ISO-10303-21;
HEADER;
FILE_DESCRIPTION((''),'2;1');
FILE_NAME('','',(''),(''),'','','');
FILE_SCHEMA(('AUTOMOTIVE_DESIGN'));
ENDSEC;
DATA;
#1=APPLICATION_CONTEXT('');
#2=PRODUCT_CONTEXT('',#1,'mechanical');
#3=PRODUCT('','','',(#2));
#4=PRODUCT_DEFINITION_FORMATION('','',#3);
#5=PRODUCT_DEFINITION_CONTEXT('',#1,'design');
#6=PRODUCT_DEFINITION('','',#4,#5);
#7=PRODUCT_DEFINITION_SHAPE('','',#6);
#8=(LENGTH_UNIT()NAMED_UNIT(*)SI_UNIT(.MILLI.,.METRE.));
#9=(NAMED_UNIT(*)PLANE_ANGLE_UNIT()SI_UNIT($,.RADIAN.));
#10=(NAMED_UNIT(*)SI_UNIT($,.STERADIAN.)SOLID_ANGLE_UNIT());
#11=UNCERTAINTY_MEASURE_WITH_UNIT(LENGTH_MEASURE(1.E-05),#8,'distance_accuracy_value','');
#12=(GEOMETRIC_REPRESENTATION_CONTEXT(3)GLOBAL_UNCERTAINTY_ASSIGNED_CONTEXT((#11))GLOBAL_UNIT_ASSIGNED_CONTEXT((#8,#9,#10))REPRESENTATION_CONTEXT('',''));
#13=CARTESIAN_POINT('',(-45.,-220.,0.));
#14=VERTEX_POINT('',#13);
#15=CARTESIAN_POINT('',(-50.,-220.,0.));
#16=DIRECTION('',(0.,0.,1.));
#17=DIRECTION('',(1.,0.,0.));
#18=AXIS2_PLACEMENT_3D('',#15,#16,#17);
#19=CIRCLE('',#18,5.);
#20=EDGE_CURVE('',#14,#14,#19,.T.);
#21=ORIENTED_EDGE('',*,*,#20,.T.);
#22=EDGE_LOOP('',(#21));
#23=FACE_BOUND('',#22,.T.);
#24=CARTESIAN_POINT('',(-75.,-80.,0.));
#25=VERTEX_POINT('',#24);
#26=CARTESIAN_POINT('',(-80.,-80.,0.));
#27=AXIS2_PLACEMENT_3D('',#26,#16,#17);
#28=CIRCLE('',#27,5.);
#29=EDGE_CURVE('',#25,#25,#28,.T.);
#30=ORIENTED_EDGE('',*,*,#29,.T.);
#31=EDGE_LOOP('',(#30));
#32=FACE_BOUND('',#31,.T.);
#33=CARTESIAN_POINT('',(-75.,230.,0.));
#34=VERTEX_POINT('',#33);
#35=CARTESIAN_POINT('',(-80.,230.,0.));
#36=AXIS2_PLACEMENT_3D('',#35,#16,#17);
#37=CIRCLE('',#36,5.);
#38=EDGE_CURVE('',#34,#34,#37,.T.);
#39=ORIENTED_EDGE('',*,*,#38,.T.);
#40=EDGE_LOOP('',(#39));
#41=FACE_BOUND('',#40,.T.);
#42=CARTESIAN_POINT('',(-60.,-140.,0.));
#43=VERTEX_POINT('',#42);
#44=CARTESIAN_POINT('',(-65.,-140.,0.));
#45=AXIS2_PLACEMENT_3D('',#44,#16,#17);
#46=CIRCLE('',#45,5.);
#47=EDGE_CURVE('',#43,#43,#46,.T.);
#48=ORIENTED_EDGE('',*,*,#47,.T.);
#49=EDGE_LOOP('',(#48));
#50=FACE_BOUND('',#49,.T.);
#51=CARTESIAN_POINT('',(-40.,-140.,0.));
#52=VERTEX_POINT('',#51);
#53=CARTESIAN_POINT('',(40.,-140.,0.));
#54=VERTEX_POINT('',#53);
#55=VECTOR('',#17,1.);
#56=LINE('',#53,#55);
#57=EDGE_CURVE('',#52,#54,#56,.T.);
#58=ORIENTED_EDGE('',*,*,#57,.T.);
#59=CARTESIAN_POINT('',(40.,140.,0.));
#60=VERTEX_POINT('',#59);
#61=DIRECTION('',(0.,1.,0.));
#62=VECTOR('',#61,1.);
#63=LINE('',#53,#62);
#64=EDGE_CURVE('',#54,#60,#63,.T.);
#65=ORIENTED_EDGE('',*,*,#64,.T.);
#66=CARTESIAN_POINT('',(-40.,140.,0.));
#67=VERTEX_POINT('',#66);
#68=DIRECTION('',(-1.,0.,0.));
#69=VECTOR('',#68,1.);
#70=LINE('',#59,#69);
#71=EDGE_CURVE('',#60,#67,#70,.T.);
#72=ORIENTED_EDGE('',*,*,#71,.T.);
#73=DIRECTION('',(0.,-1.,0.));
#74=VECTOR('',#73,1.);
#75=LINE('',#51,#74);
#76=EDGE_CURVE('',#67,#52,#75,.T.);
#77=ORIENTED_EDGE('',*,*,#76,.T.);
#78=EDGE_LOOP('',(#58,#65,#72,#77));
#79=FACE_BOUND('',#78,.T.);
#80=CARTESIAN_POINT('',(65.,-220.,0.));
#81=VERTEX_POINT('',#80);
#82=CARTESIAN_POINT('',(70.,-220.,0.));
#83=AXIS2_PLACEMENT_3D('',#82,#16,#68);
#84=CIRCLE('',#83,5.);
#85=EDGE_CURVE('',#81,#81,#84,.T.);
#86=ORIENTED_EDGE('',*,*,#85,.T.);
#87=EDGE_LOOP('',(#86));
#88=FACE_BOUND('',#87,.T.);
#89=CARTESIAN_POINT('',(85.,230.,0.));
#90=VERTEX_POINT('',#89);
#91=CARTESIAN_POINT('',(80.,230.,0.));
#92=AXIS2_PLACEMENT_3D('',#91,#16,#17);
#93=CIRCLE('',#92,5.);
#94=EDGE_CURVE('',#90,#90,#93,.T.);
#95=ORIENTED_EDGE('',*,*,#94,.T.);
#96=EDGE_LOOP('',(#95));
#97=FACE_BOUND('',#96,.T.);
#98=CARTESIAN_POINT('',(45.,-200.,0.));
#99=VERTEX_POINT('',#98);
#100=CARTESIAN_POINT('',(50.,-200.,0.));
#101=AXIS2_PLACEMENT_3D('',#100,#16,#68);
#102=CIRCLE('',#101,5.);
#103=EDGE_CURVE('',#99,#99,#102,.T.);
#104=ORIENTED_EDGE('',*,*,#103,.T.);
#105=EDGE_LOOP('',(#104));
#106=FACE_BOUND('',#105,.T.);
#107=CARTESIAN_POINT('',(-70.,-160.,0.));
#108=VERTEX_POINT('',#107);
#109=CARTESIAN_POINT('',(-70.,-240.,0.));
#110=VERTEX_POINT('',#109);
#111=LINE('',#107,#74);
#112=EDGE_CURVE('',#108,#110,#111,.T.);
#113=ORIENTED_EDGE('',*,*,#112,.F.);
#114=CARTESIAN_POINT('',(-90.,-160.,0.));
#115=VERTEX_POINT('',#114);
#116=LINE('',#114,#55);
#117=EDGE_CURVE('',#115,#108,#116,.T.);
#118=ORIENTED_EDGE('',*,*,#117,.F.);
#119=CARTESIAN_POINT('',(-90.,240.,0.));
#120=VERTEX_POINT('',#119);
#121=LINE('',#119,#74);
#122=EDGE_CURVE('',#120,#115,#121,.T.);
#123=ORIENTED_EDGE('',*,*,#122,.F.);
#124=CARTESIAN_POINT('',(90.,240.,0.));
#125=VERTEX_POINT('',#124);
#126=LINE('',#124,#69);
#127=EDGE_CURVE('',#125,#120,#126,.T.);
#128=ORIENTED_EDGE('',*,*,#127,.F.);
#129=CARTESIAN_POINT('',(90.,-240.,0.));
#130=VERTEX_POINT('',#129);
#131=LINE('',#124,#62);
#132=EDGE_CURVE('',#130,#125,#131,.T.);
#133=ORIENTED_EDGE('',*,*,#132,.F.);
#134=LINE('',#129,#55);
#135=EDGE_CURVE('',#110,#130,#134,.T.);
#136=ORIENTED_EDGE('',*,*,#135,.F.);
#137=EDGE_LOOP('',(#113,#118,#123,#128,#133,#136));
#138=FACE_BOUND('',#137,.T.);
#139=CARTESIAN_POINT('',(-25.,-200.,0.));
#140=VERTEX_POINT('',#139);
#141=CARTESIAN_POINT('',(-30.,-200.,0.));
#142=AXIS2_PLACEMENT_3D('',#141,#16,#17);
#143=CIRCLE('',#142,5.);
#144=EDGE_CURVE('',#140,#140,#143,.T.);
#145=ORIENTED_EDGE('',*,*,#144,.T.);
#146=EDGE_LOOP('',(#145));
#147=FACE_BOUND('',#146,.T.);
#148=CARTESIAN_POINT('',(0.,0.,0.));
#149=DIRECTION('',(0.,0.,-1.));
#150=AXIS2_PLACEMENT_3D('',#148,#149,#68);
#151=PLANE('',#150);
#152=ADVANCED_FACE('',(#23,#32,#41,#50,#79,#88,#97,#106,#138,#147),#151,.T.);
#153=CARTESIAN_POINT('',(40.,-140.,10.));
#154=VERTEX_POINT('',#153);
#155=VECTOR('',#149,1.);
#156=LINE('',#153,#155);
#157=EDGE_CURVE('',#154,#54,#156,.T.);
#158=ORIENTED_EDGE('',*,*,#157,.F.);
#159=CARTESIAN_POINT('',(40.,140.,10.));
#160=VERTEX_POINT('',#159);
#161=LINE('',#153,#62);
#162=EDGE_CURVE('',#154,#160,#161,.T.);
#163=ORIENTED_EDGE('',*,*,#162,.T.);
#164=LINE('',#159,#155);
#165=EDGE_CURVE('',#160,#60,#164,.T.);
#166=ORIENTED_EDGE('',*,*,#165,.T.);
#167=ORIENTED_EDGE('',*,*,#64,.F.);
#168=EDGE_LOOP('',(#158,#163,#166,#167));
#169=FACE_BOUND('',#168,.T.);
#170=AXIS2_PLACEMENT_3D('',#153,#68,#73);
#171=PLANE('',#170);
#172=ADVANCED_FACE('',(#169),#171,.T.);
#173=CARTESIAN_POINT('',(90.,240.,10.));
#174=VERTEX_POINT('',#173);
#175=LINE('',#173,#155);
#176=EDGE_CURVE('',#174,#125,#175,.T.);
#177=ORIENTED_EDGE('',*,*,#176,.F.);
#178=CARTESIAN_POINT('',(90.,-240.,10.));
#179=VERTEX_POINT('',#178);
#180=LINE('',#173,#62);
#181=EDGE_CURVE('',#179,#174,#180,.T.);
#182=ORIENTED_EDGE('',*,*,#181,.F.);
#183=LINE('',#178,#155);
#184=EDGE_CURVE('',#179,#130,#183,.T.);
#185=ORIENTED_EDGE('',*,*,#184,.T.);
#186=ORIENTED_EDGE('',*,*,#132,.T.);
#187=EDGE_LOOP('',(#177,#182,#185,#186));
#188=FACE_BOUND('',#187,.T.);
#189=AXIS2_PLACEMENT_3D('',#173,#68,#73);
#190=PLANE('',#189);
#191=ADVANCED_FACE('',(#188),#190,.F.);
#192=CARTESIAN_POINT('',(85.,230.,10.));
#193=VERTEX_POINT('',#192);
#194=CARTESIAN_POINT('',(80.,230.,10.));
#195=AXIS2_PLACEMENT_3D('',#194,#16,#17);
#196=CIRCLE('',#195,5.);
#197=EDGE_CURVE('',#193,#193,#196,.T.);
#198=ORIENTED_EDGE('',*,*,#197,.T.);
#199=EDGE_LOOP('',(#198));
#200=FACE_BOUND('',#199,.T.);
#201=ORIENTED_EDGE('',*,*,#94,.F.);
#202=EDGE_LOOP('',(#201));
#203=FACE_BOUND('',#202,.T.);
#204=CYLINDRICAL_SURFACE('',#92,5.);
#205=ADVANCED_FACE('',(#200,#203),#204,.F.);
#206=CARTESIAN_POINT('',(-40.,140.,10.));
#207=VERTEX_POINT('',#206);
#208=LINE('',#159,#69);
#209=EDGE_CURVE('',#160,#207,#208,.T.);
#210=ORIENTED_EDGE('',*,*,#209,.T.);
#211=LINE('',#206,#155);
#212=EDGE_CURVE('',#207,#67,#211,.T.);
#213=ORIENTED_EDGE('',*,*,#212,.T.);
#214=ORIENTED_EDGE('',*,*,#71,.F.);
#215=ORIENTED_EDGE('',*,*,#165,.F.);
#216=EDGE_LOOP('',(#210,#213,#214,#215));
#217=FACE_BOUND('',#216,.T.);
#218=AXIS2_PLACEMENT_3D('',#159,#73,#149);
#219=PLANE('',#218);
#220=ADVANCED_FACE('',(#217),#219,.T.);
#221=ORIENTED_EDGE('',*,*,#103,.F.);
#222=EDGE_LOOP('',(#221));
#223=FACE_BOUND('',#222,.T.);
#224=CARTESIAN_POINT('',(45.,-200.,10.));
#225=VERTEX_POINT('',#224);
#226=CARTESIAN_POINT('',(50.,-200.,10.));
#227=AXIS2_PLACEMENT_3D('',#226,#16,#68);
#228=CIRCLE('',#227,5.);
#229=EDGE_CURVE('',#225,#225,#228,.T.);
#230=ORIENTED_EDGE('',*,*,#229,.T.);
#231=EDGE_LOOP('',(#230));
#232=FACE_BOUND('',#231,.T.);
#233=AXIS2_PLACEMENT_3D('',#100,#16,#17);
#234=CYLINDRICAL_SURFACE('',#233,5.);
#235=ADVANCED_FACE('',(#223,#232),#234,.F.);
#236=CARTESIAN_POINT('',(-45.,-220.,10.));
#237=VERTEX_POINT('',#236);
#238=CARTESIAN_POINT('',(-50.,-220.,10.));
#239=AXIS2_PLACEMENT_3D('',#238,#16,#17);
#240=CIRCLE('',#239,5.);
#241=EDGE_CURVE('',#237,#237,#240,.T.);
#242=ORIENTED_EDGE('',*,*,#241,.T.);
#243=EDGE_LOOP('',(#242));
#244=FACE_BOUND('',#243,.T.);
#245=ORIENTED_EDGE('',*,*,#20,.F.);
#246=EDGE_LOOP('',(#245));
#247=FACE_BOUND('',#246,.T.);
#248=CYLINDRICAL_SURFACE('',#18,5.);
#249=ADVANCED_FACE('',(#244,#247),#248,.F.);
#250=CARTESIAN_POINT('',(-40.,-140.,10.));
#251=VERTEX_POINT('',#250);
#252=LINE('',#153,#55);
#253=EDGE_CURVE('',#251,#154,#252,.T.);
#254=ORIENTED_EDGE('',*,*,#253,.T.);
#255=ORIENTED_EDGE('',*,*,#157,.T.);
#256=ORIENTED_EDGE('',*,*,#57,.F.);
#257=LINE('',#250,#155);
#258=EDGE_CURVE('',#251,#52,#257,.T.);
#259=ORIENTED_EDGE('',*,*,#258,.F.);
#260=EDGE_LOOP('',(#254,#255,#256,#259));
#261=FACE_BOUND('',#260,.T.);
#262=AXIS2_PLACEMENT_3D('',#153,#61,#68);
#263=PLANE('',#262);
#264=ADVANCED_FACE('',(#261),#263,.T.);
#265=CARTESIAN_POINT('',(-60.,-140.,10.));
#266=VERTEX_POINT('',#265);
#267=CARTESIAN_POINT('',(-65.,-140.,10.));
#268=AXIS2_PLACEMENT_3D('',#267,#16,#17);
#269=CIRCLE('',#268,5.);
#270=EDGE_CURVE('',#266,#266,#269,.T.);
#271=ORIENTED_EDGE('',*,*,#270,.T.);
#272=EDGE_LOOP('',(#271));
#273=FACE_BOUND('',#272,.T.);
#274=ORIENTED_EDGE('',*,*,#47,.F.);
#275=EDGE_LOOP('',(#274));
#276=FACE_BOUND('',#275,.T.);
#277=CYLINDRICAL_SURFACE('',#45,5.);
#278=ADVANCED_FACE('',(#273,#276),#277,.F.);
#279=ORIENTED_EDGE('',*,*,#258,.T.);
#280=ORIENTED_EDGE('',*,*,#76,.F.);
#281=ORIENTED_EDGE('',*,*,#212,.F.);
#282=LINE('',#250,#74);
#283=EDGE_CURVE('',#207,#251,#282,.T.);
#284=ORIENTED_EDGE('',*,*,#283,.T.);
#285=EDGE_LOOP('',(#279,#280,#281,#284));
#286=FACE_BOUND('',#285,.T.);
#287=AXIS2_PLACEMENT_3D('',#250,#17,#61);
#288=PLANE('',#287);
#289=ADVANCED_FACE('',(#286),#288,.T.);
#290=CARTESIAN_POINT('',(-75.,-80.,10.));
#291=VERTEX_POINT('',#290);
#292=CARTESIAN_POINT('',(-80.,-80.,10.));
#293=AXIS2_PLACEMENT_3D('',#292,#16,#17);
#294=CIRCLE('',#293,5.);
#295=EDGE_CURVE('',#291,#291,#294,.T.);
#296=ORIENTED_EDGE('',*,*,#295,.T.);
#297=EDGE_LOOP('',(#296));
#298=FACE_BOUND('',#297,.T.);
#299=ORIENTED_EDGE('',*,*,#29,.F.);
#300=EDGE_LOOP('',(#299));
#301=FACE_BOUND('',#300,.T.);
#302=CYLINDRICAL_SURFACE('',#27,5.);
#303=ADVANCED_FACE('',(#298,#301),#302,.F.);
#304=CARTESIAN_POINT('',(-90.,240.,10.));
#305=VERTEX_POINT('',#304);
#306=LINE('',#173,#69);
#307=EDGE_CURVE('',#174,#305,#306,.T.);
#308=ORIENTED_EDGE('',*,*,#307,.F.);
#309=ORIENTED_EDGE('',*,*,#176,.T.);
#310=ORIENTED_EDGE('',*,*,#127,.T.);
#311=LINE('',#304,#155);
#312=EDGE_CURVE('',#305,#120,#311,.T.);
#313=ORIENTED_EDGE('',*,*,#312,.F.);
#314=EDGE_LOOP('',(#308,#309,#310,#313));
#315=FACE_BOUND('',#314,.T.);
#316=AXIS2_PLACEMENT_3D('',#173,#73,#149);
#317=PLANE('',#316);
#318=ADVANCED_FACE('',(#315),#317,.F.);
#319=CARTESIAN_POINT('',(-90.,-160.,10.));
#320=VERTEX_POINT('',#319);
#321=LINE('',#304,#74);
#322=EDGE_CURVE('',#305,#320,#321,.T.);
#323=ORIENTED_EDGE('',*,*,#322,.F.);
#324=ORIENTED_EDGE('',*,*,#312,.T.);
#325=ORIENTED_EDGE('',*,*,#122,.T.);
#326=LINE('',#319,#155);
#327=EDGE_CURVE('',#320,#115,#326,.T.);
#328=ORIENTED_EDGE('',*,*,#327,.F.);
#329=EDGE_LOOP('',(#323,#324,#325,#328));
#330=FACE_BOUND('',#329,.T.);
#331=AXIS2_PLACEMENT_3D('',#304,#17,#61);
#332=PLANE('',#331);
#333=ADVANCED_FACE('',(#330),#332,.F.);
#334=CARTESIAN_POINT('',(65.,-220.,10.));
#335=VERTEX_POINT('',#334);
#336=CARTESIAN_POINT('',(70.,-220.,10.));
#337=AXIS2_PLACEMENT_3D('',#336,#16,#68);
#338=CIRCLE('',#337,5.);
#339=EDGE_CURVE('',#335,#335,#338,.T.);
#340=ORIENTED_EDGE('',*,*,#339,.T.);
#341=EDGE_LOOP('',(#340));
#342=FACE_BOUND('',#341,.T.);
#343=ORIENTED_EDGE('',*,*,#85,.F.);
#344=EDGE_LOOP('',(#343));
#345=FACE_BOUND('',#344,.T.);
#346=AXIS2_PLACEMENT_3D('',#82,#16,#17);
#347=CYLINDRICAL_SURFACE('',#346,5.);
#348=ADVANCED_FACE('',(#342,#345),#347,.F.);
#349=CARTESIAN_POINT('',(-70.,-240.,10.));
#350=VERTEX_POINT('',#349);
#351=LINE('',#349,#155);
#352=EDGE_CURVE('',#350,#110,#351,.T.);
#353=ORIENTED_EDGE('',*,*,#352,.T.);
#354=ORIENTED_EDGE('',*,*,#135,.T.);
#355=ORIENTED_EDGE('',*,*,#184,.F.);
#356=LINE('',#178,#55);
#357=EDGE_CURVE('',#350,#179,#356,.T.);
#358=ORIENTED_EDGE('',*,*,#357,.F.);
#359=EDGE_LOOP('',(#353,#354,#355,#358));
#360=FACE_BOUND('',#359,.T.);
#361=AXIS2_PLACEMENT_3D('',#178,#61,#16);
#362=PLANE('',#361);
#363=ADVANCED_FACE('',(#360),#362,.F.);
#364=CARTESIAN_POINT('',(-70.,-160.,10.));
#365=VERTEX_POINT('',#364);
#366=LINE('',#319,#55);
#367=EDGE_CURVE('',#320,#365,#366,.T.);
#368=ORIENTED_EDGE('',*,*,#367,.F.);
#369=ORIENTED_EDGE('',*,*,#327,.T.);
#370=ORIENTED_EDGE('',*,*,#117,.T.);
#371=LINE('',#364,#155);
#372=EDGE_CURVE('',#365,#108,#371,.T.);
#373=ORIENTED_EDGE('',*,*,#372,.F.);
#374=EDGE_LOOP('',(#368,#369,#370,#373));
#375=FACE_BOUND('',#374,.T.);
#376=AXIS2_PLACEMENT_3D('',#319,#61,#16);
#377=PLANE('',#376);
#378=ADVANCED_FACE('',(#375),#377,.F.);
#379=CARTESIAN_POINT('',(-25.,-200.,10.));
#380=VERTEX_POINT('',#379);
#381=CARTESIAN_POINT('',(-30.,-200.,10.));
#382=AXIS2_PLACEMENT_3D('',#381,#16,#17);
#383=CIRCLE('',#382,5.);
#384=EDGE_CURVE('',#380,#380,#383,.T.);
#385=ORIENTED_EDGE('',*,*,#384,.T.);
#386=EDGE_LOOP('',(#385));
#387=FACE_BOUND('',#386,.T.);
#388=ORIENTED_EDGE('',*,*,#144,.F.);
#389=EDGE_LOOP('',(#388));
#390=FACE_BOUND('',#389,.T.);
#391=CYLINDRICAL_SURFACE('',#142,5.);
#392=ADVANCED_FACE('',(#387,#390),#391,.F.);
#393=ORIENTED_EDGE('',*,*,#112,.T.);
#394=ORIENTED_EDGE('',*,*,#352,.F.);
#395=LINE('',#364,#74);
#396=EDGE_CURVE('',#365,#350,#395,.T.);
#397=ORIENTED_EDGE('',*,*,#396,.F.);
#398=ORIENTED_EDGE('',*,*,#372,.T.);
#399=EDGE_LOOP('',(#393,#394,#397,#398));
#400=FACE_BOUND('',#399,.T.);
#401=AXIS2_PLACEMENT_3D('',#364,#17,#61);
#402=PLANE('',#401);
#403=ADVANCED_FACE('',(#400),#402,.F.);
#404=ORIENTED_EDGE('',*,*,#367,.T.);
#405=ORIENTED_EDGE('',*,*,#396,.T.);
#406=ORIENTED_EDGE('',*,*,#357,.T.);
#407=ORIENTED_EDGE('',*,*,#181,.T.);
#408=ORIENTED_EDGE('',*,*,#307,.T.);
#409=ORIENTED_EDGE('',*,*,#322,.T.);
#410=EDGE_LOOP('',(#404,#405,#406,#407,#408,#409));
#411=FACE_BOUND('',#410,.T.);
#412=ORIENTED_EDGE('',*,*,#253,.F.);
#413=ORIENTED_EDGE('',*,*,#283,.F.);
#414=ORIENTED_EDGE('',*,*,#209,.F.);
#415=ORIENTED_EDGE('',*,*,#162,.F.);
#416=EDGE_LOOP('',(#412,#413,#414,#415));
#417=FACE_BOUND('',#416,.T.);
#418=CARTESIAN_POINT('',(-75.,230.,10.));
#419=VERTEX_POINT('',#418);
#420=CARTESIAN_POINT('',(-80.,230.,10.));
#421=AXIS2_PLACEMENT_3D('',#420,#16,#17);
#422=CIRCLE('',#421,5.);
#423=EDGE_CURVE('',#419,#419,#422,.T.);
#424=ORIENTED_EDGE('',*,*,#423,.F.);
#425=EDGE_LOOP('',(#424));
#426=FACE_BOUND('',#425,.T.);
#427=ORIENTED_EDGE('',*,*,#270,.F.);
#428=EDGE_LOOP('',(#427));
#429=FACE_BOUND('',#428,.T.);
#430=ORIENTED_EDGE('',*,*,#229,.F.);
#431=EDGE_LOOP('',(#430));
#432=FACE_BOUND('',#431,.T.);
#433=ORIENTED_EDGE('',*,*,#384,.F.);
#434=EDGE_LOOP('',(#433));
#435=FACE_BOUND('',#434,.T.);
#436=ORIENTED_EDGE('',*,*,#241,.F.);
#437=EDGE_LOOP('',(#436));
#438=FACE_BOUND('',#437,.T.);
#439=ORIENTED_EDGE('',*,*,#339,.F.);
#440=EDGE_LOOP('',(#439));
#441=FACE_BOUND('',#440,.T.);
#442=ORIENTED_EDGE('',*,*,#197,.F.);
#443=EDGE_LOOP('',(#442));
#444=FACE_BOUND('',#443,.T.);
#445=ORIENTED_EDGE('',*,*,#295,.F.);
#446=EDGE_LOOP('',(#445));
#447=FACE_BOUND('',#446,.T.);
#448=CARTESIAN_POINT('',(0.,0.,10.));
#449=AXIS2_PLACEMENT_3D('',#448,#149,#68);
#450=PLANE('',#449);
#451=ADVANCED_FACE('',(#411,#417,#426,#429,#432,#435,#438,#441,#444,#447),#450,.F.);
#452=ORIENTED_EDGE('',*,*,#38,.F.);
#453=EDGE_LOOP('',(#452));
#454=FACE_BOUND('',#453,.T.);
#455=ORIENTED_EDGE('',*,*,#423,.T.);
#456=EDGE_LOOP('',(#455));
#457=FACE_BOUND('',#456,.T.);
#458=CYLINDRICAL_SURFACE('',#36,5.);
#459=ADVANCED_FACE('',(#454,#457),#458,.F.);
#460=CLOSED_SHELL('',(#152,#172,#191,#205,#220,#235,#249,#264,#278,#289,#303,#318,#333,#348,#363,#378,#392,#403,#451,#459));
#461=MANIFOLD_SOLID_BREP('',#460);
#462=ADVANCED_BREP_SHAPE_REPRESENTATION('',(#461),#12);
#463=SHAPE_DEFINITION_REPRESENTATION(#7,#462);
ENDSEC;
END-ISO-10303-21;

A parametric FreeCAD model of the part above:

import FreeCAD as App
import Part
import Sketcher

V = App.Vector

doc = App.newDocument("Part")
body = doc.addObject("PartDesign::Body", "Body")

sketch1 = body.newObject("Sketcher::SketchObject", "Sketch")
sketch1.AttachmentSupport = (doc.getObject("XY_Plane"), [""])
sketch1.MapMode = "FlatFace"
sketch1.addGeometry([
    Part.LineSegment(V(-90, -160, 0), V(-70, -160, 0)),
    Part.LineSegment(V(-70, -160, 0), V(-70, -240, 0)),
    Part.LineSegment(V(-70, -240, 0), V(90, -240, 0)),
    Part.LineSegment(V(90, -240, 0), V(90, 240, 0)),
    Part.LineSegment(V(90, 240, 0), V(-90, 240, 0)),
    Part.LineSegment(V(-90, 240, 0), V(-90, -160, 0)),
    Part.LineSegment(V(40, -140, 0), V(-40, -140, 0)),
    Part.LineSegment(V(-40, -140, 0), V(-40, 140, 0)),
    Part.LineSegment(V(-40, 140, 0), V(40, 140, 0)),
    Part.LineSegment(V(40, 140, 0), V(40, -140, 0)),
], False)
sketch1.addConstraint([
    Sketcher.Constraint("Coincident", 0, 2, 1, 1),
    Sketcher.Constraint("Coincident", 1, 2, 2, 1),
    Sketcher.Constraint("Coincident", 2, 2, 3, 1),
    Sketcher.Constraint("Coincident", 3, 2, 4, 1),
    Sketcher.Constraint("Coincident", 4, 2, 5, 1),
    Sketcher.Constraint("Coincident", 5, 2, 0, 1),
    Sketcher.Constraint("Coincident", 6, 2, 7, 1),
    Sketcher.Constraint("Coincident", 7, 2, 8, 1),
    Sketcher.Constraint("Coincident", 8, 2, 9, 1),
    Sketcher.Constraint("Coincident", 9, 2, 6, 1),
    Sketcher.Constraint("Horizontal", 0),
    Sketcher.Constraint("Vertical", 1),
    Sketcher.Constraint("Horizontal", 2),
    Sketcher.Constraint("Vertical", 3),
    Sketcher.Constraint("Horizontal", 4),
    Sketcher.Constraint("Vertical", 5),
    Sketcher.Constraint("Horizontal", 6),
    Sketcher.Constraint("Vertical", 7),
    Sketcher.Constraint("Horizontal", 8),
    Sketcher.Constraint("Vertical", 9),
    Sketcher.Constraint("Symmetric", 2, 2, 4, 2, -1, 1),
    Sketcher.Constraint("Symmetric", 6, 2, 8, 2, -1, 1),
    Sketcher.Constraint("Equal", 8, 1),
    Sketcher.Constraint("DistanceX", 0, 1, 0, 2, 20.0),
    Sketcher.Constraint("DistanceX", 2, 1, 2, 2, 160.0),
    Sketcher.Constraint("DistanceX", 6, 2, 6, 1, 80.0),
    Sketcher.Constraint("DistanceY", 3, 1, 3, 2, 480.0),
    Sketcher.Constraint("DistanceY", 7, 1, 7, 2, 280.0),
])
pad1 = body.newObject("PartDesign::Pad", "Pad")
pad1.Profile = sketch1
pad1.Length = 10

sketch2 = body.newObject("Sketcher::SketchObject", "Sketch001")
sketch2.AttachmentSupport = (doc.getObject("XY_Plane"), [""])
sketch2.MapMode = "FlatFace"
sketch2.AttachmentOffset = App.Placement(V(0, 0, 10), App.Rotation())
sketch2.addGeometry([
    Part.Circle(V(-50, -220, 0), V(0, 0, 1), 5),
    Part.Circle(V(-30, -200, 0), V(0, 0, 1), 5),
    Part.Circle(V(70, -220, 0), V(0, 0, 1), 5),
    Part.Circle(V(50, -200, 0), V(0, 0, 1), 5),
    Part.Circle(V(-80, 230, 0), V(0, 0, 1), 5),
    Part.Circle(V(80, 230, 0), V(0, 0, 1), 5),
    Part.Circle(V(-80, -80, 0), V(0, 0, 1), 5),
    Part.Circle(V(-65, -140, 0), V(0, 0, 1), 5),
], False)
sketch2.addConstraint([
    Sketcher.Constraint("Equal", 0, 1),
    Sketcher.Constraint("Equal", 1, 2),
    Sketcher.Constraint("Equal", 2, 3),
    Sketcher.Constraint("Equal", 3, 4),
    Sketcher.Constraint("Equal", 4, 5),
    Sketcher.Constraint("Equal", 5, 6),
    Sketcher.Constraint("Equal", 6, 7),
    Sketcher.Constraint("Symmetric", 4, 3, 5, 3, -2),
    Sketcher.Constraint("Horizontal", 0, 3, 2, 3),
    Sketcher.Constraint("Horizontal", 1, 3, 3, 3),
    Sketcher.Constraint("Vertical", 4, 3, 6, 3),
    Sketcher.Constraint("Diameter", 0, 10.0),
    Sketcher.Constraint("DistanceX", 0, 3, -1, 1, 50.0),
    Sketcher.Constraint("DistanceY", 0, 3, -1, 1, 220.0),
    Sketcher.Constraint("DistanceX", 1, 3, -1, 1, 30.0),
    Sketcher.Constraint("DistanceY", 1, 3, -1, 1, 200.0),
    Sketcher.Constraint("DistanceX", -1, 1, 2, 3, 70.0),
    Sketcher.Constraint("DistanceX", -1, 1, 3, 3, 50.0),
    Sketcher.Constraint("DistanceX", 4, 3, -1, 1, 80.0),
    Sketcher.Constraint("DistanceY", -1, 1, 4, 3, 230.0),
    Sketcher.Constraint("DistanceY", 6, 3, -1, 1, 80.0),
    Sketcher.Constraint("DistanceX", 7, 3, -1, 1, 65.0),
    Sketcher.Constraint("DistanceY", 7, 3, -1, 1, 140.0),
])
pocket1 = body.newObject("PartDesign::Pocket", "Pocket")
pocket1.Profile = sketch2
pocket1.Length = 10

doc.recompute()
